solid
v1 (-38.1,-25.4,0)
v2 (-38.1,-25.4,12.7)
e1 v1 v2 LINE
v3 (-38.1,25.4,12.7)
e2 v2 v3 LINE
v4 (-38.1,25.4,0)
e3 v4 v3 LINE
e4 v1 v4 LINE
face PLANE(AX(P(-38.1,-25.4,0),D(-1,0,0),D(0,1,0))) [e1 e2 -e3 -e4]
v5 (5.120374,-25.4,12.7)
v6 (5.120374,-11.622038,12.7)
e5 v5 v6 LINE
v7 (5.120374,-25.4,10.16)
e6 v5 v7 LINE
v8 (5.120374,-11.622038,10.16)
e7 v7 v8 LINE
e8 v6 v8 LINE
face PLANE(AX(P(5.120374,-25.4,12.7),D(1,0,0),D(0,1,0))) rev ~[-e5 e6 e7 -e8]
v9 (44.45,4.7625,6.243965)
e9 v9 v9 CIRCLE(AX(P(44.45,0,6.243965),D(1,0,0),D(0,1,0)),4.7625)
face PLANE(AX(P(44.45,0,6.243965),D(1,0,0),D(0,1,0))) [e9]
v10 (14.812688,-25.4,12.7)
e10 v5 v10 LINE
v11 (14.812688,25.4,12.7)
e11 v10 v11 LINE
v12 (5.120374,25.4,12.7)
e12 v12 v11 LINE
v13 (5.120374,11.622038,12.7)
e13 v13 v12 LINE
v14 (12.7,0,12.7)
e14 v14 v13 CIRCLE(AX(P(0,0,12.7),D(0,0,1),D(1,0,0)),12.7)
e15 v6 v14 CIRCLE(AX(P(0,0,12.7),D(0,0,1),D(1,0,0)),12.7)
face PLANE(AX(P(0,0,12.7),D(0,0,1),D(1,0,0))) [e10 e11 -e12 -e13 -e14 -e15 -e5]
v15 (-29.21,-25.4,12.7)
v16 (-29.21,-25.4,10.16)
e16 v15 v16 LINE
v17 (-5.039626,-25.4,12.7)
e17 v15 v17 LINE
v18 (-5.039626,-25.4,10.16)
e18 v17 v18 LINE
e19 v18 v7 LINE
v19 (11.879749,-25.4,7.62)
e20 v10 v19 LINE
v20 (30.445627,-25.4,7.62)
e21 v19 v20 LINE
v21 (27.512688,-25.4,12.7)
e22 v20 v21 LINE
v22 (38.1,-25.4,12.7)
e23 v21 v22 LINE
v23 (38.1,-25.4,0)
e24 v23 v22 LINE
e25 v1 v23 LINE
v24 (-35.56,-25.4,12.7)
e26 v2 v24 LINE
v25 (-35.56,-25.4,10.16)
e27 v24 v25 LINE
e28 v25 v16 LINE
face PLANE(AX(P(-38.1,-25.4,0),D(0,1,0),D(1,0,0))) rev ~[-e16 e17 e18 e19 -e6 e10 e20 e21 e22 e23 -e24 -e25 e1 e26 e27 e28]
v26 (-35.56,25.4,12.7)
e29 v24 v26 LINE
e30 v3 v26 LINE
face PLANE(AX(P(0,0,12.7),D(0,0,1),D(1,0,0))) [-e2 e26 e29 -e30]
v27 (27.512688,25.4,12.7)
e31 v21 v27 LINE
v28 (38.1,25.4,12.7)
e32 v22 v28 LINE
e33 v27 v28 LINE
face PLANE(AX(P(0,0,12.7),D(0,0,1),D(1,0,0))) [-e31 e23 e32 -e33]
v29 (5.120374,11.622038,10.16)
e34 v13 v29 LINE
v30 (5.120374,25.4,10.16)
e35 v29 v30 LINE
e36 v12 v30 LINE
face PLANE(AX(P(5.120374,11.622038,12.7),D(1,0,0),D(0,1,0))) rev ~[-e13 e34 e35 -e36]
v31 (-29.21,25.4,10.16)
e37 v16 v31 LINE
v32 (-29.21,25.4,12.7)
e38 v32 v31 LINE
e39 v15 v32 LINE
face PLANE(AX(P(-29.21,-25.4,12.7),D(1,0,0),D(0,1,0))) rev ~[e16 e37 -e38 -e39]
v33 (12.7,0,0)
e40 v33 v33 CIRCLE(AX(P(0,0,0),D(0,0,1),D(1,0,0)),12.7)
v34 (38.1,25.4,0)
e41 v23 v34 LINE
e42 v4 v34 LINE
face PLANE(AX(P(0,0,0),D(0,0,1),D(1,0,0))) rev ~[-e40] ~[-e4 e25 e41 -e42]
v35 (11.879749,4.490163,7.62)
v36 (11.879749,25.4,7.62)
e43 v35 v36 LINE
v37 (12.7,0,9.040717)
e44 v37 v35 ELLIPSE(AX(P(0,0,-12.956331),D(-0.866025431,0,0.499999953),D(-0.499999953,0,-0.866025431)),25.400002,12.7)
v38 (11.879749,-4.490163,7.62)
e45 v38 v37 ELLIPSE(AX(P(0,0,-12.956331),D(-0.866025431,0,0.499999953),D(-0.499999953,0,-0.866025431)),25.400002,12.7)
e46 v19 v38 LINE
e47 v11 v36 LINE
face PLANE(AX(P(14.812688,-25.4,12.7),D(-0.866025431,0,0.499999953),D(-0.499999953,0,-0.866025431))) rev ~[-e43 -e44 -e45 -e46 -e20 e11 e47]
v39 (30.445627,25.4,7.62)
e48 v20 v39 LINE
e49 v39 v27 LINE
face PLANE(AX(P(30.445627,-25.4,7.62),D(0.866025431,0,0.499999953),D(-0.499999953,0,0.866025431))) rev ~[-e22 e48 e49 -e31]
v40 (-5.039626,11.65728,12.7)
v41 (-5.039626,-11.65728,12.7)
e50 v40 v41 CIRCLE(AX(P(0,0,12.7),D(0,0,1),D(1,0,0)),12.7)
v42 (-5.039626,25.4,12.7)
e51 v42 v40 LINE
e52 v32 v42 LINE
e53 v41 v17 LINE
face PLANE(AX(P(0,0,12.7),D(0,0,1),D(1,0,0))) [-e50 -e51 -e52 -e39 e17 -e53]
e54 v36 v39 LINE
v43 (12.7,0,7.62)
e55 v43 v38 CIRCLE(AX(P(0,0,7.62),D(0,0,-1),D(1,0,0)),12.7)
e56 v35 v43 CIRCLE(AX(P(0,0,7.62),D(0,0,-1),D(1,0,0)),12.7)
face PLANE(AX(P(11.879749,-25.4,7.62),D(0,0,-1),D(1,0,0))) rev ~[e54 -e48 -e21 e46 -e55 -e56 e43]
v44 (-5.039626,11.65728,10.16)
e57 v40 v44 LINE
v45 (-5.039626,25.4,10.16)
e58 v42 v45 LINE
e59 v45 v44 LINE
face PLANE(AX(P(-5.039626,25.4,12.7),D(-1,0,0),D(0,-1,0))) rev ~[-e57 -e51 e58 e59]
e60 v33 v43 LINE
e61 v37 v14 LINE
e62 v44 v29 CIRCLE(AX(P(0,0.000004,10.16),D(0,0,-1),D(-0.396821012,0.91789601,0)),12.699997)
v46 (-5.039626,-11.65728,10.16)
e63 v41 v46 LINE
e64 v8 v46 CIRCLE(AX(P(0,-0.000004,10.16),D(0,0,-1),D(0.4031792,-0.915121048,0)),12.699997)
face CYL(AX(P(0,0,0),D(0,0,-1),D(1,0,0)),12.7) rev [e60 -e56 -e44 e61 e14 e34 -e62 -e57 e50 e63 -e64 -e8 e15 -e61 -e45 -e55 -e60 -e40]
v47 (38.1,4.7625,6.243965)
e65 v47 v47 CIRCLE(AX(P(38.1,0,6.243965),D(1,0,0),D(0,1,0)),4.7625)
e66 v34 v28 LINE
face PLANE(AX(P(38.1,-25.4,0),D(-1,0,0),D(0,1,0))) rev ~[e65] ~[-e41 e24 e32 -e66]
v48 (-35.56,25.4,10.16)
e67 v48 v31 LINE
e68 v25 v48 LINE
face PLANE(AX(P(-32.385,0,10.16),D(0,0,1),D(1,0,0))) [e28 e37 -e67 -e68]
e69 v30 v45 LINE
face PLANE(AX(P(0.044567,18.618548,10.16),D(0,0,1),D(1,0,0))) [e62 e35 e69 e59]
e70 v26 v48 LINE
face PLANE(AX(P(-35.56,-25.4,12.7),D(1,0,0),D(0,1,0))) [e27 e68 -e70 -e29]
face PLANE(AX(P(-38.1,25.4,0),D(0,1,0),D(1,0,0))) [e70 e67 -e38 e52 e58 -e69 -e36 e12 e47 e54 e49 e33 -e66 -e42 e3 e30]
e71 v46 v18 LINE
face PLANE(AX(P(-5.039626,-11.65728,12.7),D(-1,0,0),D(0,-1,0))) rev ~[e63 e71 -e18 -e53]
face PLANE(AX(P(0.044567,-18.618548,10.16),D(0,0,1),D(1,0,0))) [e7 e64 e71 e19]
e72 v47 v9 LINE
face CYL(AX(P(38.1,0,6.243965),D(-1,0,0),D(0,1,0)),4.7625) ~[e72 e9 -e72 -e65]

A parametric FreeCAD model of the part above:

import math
import FreeCAD as App
import Part
import Sketcher

V = App.Vector
Q = App.Units.Quantity

doc = App.newDocument("Part")
params = doc.addObject("Spreadsheet::Sheet", "Params")
for row, (alias, value) in enumerate([
    ("sketch1_diameter", "1 in"),
    ("sketch1_width", "3 in"),
    ("sketch1_height", "2 in"),
    ("pad1_length", "0.5 in"),
    ("sketch2_radius", "0.4999999 in"),
    ("sketch2_height", "2 in"),
    ("sketch2_width", "0.4 in"),
    ("sketch2_width2", "0.25 in"),
    ("pocket1_length", "0.1 in"),
    ("sketch3_width", "0.5 in"),
    ("sketch4_diameter", "0.375 in"),
    ("pad2_length", "0.25 in"),
], start=1):
    params.set(f"A{row}", alias)
    params.set(f"B{row}", "=" + value)
    params.setAlias(f"B{row}", alias)

body = doc.addObject("PartDesign::Body", "Body")

# Sketch on XY plane
sketch1 = body.newObject("Sketcher::SketchObject", "Sketch")
sketch1.AttachmentSupport = (doc.getObject("XY_Plane"), [""])
sketch1.MapMode = "FlatFace"
sketch1.addGeometry(Part.LineSegment(V(-38.1, 25.4, 0), V(-38.1, -25.4, 0)), False)
sketch1.addGeometry(Part.LineSegment(V(-38.1, -25.4, 0), V(38.1, -25.4, 0)), False)
sketch1.addGeometry(Part.LineSegment(V(38.1, -25.4, 0), V(38.1, 25.4, 0)), False)
sketch1.addGeometry(Part.LineSegment(V(38.1, 25.4, 0), V(-38.1, 25.4, 0)), False)
sketch1.addGeometry(Part.Circle(V(0, 0, 0), V(0, 0, 1), 12.7), False)
sketch1.addConstraint(Sketcher.Constraint("Coincident", 0, 2, 1, 1))
sketch1.addConstraint(Sketcher.Constraint("Coincident", 1, 2, 2, 1))
sketch1.addConstraint(Sketcher.Constraint("Coincident", 2, 2, 3, 1))
sketch1.addConstraint(Sketcher.Constraint("Coincident", 3, 2, 0, 1))
sketch1.addConstraint(Sketcher.Constraint("Vertical", 0))
sketch1.addConstraint(Sketcher.Constraint("Horizontal", 1))
sketch1.addConstraint(Sketcher.Constraint("Vertical", 2))
sketch1.addConstraint(Sketcher.Constraint("Horizontal", 3))
sketch1.addConstraint(Sketcher.Constraint("Coincident", 4, 3, -1, 1))
sketch1.addConstraint(Sketcher.Constraint("Symmetric", 0, 2, 2, 2, -1, 1))
sketch1.addConstraint(Sketcher.Constraint("Diameter", 4, Q("1 in")))
sketch1.addConstraint(Sketcher.Constraint("DistanceX", 1, 1, 1, 2, Q("3 in")))
sketch1.addConstraint(Sketcher.Constraint("DistanceY", 0, 2, 0, 1, Q("2 in")))
sketch1.setExpression("Constraints[10]", "Params.sketch1_diameter")
sketch1.setExpression("Constraints[11]", "Params.sketch1_width")
sketch1.setExpression("Constraints[12]", "Params.sketch1_height")
pad1 = body.newObject("PartDesign::Pad", "Pad")
pad1.Profile = sketch1
pad1.setExpression("Length", "Params.pad1_length")

# Sketch on XY plane
sketch2 = body.newObject("Sketcher::SketchObject", "Sketch001")
sketch2.AttachmentSupport = (doc.getObject("XY_Plane"), [""])
sketch2.MapMode = "FlatFace"
sketch2.AttachmentOffset = App.Placement(V(0, 0, 0.5 * 25.4), App.Rotation())
sketch2.addGeometry(Part.LineSegment(V(-35.56, 25.4, 0), V(-35.56, -25.4, 0)), False)
sketch2.addGeometry(Part.LineSegment(V(-35.56, -25.4, 0), V(-29.21, -25.4, 0)), False)
sketch2.addGeometry(Part.LineSegment(V(-29.21, -25.4, 0), V(-29.21, 25.4, 0)), False)
sketch2.addGeometry(Part.LineSegment(V(-29.21, 25.4, 0), V(-35.56, 25.4, 0)), False)
sketch2.addGeometry(Part.LineSegment(V(-5.039626, -11.65728, 0), V(-5.039626, -25.4, 0)), False)
sketch2.addGeometry(Part.LineSegment(V(-5.039626, -25.4, 0), V(5.120374, -25.4, 0)), False)
sketch2.addGeometry(Part.LineSegment(V(5.120374, -25.4, 0), V(5.120374, -11.622038, 0)), False)
sketch2.addGeometry(Part.ArcOfCircle(Part.Circle(V(0, -0.000004, 0), V(0, 0, 1), 12.699997), math.radians(-113.379594), math.radians(-66.222923)), False)
sketch2.addGeometry(Part.LineSegment(V(5.120374, 25.4, 0), V(-5.039626, 25.4, 0)), False)
sketch2.addGeometry(Part.LineSegment(V(-5.039626, 25.4, 0), V(-5.039626, 11.65728, 0)), False)
sketch2.addGeometry(Part.ArcOfCircle(Part.Circle(V(0, 0.000004, 0), V(0, 0, 1), 12.699997), math.radians(66.222923), math.radians(113.379594)), False)
sketch2.addGeometry(Part.LineSegment(V(5.120374, 11.622038, 0), V(5.120374, 25.4, 0)), False)
sketch2.addConstraint(Sketcher.Constraint("Coincident", 0, 2, 1, 1))
sketch2.addConstraint(Sketcher.Constraint("Coincident", 1, 2, 2, 1))
sketch2.addConstraint(Sketcher.Constraint("Coincident", 2, 2, 3, 1))
sketch2.addConstraint(Sketcher.Constraint("Coincident", 3, 2, 0, 1))
sketch2.addConstraint(Sketcher.Constraint("Coincident", 4, 2, 5, 1))
sketch2.addConstraint(Sketcher.Constraint("Coincident", 5, 2, 6, 1))
sketch2.addConstraint(Sketcher.Constraint("Coincident", 6, 2, 7, 2))
sketch2.addConstraint(Sketcher.Constraint("Coincident", 7, 1, 4, 1))
sketch2.addConstraint(Sketcher.Constraint("Coincident", 8, 2, 9, 1))
sketch2.addConstraint(Sketcher.Constraint("Coincident", 9, 2, 10, 2))
sketch2.addConstraint(Sketcher.Constraint("Coincident", 10, 1, 11, 1))
sketch2.addConstraint(Sketcher.Constraint("Coincident", 11, 2, 8, 1))
sketch2.addConstraint(Sketcher.Constraint("Vertical", 0))
sketch2.addConstraint(Sketcher.Constraint("Horizontal", 1))
sketch2.addConstraint(Sketcher.Constraint("Vertical", 2))
sketch2.addConstraint(Sketcher.Constraint("Horizontal", 3))
sketch2.addConstraint(Sketcher.Constraint("Vertical", 4))
sketch2.addConstraint(Sketcher.Constraint("Horizontal", 5))
sketch2.addConstraint(Sketcher.Constraint("Vertical", 6))
sketch2.addConstraint(Sketcher.Constraint("Horizontal", 8))
sketch2.addConstraint(Sketcher.Constraint("Vertical", 9))
sketch2.addConstraint(Sketcher.Constraint("Vertical", 11))
sketch2.addConstraint(Sketcher.Constraint("Coincident", 7, 3, -1, 1))
sketch2.addConstraint(Sketcher.Constraint("Coincident", 10, 3, -1, 1))
sketch2.addConstraint(Sketcher.Constraint("Equal", 7, 10))
sketch2.addConstraint(Sketcher.Constraint("Symmetric", 4, 2, 8, 2, -1))
sketch2.addConstraint(Sketcher.Constraint("Horizontal", 1, 2, 4, 2))
sketch2.addConstraint(Sketcher.Constraint("Horizontal", 3, 2, 8, 2))
sketch2.addConstraint(Sketcher.Constraint("Vertical", 6, 2, 10, 1))
sketch2.addConstraint(Sketcher.Constraint("Radius", 7, Q("0.4999999 in")))
sketch2.addConstraint(Sketcher.Constraint("DistanceY", 0, 2, 0, 1, Q("2 in")))
sketch2.addConstraint(Sketcher.Constraint("DistanceX", 5, 1, 5, 2, Q("0.4 in")))
sketch2.addConstraint(Sketcher.Constraint("DistanceX", 1, 1, 1, 2, Q("0.25 in")))
sketch2.addConstraint(Sketcher.Constraint("DistanceX", 0, 2, -1, 1, Q("1.4 in")))
sketch2.addConstraint(Sketcher.Constraint("DistanceY", 4, 2, 4, 1, 13.74272))
sketch2.setExpression("Constraints[29]", "Params.sketch2_radius")
sketch2.setExpression("Constraints[30]", "Params.sketch2_height")
sketch2.setExpression("Constraints[31]", "Params.sketch2_width")
sketch2.setExpression("Constraints[32]", "Params.sketch2_width2")
pocket1 = body.newObject("PartDesign::Pocket", "Pocket")
pocket1.Profile = sketch2
pocket1.setExpression("Length", "Params.pocket1_length")

# Sketch on XZ plane
sketch3 = body.newObject("Sketcher::SketchObject", "Sketch002")
sketch3.AttachmentSupport = (doc.getObject("XZ_Plane"), [""])
sketch3.MapMode = "FlatFace"
sketch3.AttachmentOffset = App.Placement(V(0, 0, 1 * 25.4), App.Rotation())
sketch3.addGeometry(Part.LineSegment(V(27.512688, 12.7, 0), V(14.812688, 12.7, 0)), False)
sketch3.addGeometry(Part.LineSegment(V(14.812688, 12.7, 0), V(11.879749, 7.62, 0)), False)
sketch3.addGeometry(Part.LineSegment(V(11.879749, 7.62, 0), V(30.445627, 7.62, 0)), False)
sketch3.addGeometry(Part.LineSegment(V(30.445627, 7.62, 0), V(27.512688, 12.7, 0)), False)
sketch3.addConstraint(Sketcher.Constraint("Coincident", 0, 2, 1, 1))
sketch3.addConstraint(Sketcher.Constraint("Coincident", 1, 2, 2, 1))
sketch3.addConstraint(Sketcher.Constraint("Coincident", 2, 2, 3, 1))
sketch3.addConstraint(Sketcher.Constraint("Coincident", 3, 2, 0, 1))
sketch3.addConstraint(Sketcher.Constraint("Horizontal", 0))
sketch3.addConstraint(Sketcher.Constraint("Horizontal", 2))
sketch3.addConstraint(Sketcher.Constraint("Equal", 1, 3))
sketch3.addConstraint(Sketcher.Constraint("DistanceX", 0, 2, 0, 1, Q("0.5 in")))
sketch3.addConstraint(Sketcher.Constraint("Angle", 1, Q("-119.999997 deg")))
sketch3.addConstraint(Sketcher.Constraint("DistanceY", -1, 1, 0, 2, Q("0.5 in")))
sketch3.addConstraint(Sketcher.Constraint("DistanceY", -1, 1, 1, 2, Q("0.3 in")))
sketch3.addConstraint(Sketcher.Constraint("DistanceX", -1, 1, 1, 2, 11.879749))
sketch3.setExpression("Constraints[7]", "Params.sketch3_width")
pocket2 = body.newObject("PartDesign::Pocket", "Pocket001")
pocket2.Profile = sketch3
pocket2.Type = "ThroughAll"

# Sketch on YZ plane
sketch4 = body.newObject("Sketcher::SketchObject", "Sketch003")
sketch4.AttachmentSupport = (doc.getObject("YZ_Plane"), [""])
sketch4.MapMode = "FlatFace"
sketch4.AttachmentOffset = App.Placement(V(0, 0, 1.5 * 25.4), App.Rotation())
sketch4.addGeometry(Part.Circle(V(0, 6.243965, 0), V(0, 0, 1), 4.7625), False)
sketch4.addConstraint(Sketcher.Constraint("PointOnObject", 0, 3, -2))
sketch4.addConstraint(Sketcher.Constraint("Diameter", 0, Q("0.375 in")))
sketch4.addConstraint(Sketcher.Constraint("DistanceY", -1, 1, 0, 3, 6.243965))
sketch4.setExpression("Constraints[1]", "Params.sketch4_diameter")
pad2 = body.newObject("PartDesign::Pad", "Pad001")
pad2.Profile = sketch4
pad2.setExpression("Length", "Params.pad2_length")

doc.recompute()
